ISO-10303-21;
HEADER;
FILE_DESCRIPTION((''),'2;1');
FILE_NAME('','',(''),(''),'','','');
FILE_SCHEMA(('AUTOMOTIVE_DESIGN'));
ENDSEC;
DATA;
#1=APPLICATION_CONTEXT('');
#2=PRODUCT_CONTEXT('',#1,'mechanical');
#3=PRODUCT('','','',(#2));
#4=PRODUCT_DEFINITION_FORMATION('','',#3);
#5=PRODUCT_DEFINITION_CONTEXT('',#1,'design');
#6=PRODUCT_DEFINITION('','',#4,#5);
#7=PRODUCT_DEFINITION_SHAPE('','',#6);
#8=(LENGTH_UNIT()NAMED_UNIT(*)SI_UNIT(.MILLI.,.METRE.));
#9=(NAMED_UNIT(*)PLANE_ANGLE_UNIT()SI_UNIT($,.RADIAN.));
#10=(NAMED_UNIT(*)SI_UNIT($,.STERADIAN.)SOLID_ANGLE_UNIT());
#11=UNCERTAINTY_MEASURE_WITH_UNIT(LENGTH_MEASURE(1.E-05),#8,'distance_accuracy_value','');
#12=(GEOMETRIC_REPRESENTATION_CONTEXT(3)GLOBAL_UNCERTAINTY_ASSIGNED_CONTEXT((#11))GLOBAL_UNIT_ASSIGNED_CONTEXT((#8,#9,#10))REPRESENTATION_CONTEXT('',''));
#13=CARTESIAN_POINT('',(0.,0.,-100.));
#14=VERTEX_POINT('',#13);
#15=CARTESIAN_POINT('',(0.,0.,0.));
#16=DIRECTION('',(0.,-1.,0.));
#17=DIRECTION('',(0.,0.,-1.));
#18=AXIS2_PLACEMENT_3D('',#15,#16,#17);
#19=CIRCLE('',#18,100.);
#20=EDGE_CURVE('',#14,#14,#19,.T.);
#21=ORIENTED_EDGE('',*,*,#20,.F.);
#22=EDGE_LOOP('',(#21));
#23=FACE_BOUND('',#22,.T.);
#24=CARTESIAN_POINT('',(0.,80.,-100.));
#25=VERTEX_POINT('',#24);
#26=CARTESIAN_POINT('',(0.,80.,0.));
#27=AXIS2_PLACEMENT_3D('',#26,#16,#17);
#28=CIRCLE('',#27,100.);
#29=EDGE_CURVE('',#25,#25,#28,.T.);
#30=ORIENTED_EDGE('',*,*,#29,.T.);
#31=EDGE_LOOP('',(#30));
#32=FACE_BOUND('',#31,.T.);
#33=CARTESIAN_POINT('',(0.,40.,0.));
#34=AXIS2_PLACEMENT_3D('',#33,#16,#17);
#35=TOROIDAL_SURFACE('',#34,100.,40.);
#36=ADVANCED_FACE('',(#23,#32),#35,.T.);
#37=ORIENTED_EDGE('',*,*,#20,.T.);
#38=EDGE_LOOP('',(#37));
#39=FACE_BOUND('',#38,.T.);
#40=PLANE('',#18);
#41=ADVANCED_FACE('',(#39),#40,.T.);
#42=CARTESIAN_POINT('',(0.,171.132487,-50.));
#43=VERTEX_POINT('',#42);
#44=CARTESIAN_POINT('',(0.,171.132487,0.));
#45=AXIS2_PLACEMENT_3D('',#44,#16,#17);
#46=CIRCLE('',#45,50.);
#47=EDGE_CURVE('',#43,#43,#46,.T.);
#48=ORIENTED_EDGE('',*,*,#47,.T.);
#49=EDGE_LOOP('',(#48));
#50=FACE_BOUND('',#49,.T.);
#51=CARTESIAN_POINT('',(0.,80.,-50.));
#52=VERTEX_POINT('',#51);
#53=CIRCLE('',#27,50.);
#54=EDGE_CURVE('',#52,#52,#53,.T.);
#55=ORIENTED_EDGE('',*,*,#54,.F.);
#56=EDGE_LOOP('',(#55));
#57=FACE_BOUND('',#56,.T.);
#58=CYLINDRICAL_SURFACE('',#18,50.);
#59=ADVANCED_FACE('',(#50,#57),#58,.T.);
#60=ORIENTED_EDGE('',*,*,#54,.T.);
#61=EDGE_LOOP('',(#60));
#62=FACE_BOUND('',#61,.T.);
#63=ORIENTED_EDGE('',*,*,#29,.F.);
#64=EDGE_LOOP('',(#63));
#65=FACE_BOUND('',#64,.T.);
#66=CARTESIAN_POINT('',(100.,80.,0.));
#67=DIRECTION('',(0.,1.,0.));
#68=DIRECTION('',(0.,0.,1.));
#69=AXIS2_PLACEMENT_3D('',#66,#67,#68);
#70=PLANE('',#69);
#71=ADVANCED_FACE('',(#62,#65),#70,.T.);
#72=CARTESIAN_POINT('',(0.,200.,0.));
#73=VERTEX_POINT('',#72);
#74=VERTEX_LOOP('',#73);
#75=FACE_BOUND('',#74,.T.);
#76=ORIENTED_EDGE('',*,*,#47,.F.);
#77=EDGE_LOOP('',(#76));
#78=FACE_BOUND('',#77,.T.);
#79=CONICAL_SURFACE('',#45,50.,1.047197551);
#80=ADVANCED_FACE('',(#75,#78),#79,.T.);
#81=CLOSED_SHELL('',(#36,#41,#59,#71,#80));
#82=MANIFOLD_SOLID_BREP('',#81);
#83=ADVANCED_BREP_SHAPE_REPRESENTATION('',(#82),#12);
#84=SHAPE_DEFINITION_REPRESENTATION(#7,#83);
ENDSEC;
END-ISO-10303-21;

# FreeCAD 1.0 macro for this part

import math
import FreeCAD as App
import Part
import Sketcher
Q = App.Units.Quantity

doc = App.newDocument("Part")
body = doc.addObject("PartDesign::Body", "Body")

# Sketch on XY plane
sketch1 = body.newObject("Sketcher::SketchObject", "Sketch")
sketch1.AttachmentSupport = (doc.getObject("XY_Plane"), [""])
sketch1.MapMode = "FlatFace"
sketch1.addGeometry([
    Part.LineSegment(App.Vector(0, 200, 0), App.Vector(0, 0, 0)),  # 0
    Part.LineSegment(App.Vector(0, 0, 0), App.Vector(100, 0, 0)),  # 1
    Part.ArcOfCircle(Part.Circle(App.Vector(100, 40, 0), App.Vector(0, 0, 1), 40), math.radians(-90), math.radians(90)),  # 2
    Part.LineSegment(App.Vector(100, 80, 0), App.Vector(50, 80, 0)),  # 3
    Part.LineSegment(App.Vector(50, 80, 0), App.Vector(50, 171, 0)),  # 4
    Part.LineSegment(App.Vector(50, 171, 0), App.Vector(0, 200, 0)),  # 5
], False)
sketch1.addConstraint([
    Sketcher.Constraint("Coincident", 0, 2, 1, 1),
    Sketcher.Constraint("Tangent", 1, 2, 2, 1),
    Sketcher.Constraint("Tangent", 2, 2, 3, 1),
    Sketcher.Constraint("Coincident", 3, 2, 4, 1),
    Sketcher.Constraint("Coincident", 4, 2, 5, 1),
    Sketcher.Constraint("Coincident", 5, 2, 0, 1),
    Sketcher.Constraint("Vertical", 0),
    Sketcher.Constraint("Horizontal", 1),
    Sketcher.Constraint("Horizontal", 3),
    Sketcher.Constraint("Vertical", 4),
    Sketcher.Constraint("Coincident", 0, 2, -1, 1),
    Sketcher.Constraint("Radius", 2, 40.0),
    Sketcher.Constraint("DistanceX", 1, 1, 1, 2, 100.0),
    Sketcher.Constraint("DistanceX", 3, 2, 3, 1, 50.0),
    Sketcher.Constraint("DistanceY", 0, 2, 0, 1, 200.0),
    Sketcher.Constraint("Angle", 5, Q("150 deg")),
])
revolution = body.newObject("PartDesign::Revolution", "Revolution")
revolution.Profile = sketch1
revolution.ReferenceAxis = (sketch1, ["V_Axis"])
revolution.Angle = 360

doc.recompute()
